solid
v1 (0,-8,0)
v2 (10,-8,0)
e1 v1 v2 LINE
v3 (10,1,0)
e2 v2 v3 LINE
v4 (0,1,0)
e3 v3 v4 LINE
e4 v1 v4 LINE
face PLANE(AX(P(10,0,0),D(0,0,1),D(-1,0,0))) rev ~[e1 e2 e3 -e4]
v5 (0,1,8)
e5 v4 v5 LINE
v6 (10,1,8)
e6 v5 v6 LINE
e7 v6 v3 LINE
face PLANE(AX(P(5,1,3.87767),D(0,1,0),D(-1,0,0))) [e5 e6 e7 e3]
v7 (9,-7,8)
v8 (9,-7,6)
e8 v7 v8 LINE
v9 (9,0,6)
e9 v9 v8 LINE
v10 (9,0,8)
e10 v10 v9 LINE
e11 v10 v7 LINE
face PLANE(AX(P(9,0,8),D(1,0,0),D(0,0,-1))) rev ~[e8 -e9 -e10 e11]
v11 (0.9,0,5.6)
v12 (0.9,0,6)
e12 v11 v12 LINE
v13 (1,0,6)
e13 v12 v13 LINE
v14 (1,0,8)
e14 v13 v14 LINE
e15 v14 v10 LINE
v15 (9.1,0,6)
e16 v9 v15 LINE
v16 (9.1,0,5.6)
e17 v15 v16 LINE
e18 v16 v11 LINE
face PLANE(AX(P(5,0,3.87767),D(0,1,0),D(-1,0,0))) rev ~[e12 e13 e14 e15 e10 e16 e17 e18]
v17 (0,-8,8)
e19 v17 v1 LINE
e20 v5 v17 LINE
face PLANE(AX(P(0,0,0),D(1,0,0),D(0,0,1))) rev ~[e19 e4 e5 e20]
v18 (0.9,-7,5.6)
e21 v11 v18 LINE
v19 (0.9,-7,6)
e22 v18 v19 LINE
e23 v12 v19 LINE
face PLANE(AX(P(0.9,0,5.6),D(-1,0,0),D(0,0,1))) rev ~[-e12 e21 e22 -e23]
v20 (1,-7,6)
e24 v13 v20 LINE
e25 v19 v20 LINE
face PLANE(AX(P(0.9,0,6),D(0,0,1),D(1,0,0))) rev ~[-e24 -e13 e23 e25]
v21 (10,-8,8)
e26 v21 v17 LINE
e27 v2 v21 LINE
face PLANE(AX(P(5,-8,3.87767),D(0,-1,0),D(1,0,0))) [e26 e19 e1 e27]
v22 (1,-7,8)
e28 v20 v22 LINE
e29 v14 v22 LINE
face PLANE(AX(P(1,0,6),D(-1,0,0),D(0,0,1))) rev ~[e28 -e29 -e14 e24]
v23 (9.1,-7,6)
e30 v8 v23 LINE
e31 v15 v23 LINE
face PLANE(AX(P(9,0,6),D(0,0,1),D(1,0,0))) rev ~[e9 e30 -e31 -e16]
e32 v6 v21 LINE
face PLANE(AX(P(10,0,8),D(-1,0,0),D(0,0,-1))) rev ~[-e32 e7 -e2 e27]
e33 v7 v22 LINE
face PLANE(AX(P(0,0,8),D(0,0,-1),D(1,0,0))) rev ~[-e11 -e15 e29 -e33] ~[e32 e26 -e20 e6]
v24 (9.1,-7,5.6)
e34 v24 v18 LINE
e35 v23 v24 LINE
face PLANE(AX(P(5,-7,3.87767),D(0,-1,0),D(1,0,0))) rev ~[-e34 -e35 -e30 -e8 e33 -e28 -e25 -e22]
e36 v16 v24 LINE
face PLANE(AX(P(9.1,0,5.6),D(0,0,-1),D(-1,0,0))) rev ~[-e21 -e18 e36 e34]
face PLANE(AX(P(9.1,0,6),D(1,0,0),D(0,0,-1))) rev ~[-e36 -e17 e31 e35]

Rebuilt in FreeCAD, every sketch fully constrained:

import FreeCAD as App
import Part
import Sketcher

V = App.Vector

doc = App.newDocument("Part")
params = doc.addObject("Spreadsheet::Sheet", "Params")
for row, (alias, value) in enumerate([
    ("sketch1_width", "10 mm"),
    ("sketch1_width2", "1 mm"),
    ("sketch1_height", "8 mm"),
    ("sketch1_height2", "2 mm"),
    ("sketch1_width3", "0.1 mm"),
    ("pad1_length", "7 mm"),
    ("sketch2_width", "10 mm"),
    ("sketch2_height", "8 mm"),
    ("pad2_length", "1 mm"),
    ("sketch3_width", "10 mm"),
    ("sketch3_height", "8 mm"),
    ("pad3_length", "1 mm"),
], start=1):
    params.set(f"A{row}", alias)
    params.set(f"B{row}", "=" + value)
    params.setAlias(f"B{row}", alias)

body = doc.addObject("PartDesign::Body", "Body")

sketch1 = body.newObject("Sketcher::SketchObject", "Sketch")
sketch1.AttachmentSupport = (doc.getObject("XZ_Plane"), [""])
sketch1.MapMode = "FlatFace"
sketch1.addGeometry([
    Part.LineSegment(V(0, 8, 0), V(0, 0, 0)),
    Part.LineSegment(V(0, 0, 0), V(10, 0, 0)),
    Part.LineSegment(V(10, 0, 0), V(10, 8, 0)),
    Part.LineSegment(V(10, 8, 0), V(9, 8, 0)),
    Part.LineSegment(V(9, 8, 0), V(9, 6, 0)),
    Part.LineSegment(V(9, 6, 0), V(9.1, 6, 0)),
    Part.LineSegment(V(9.1, 6, 0), V(9.1, 5.6, 0)),
    Part.LineSegment(V(9.1, 5.6, 0), V(0.9, 5.6, 0)),
    Part.LineSegment(V(0.9, 5.6, 0), V(0.9, 6, 0)),
    Part.LineSegment(V(0.9, 6, 0), V(1, 6, 0)),
    Part.LineSegment(V(1, 6, 0), V(1, 8, 0)),
    Part.LineSegment(V(1, 8, 0), V(0, 8, 0)),
], False)
sketch1.addConstraint([
    Sketcher.Constraint("Coincident", 0, 2, 1, 1),
    Sketcher.Constraint("Coincident", 1, 2, 2, 1),
    Sketcher.Constraint("Coincident", 2, 2, 3, 1),
    Sketcher.Constraint("Coincident", 3, 2, 4, 1),
    Sketcher.Constraint("Coincident", 4, 2, 5, 1),
    Sketcher.Constraint("Coincident", 5, 2, 6, 1),
    Sketcher.Constraint("Coincident", 6, 2, 7, 1),
    Sketcher.Constraint("Coincident", 7, 2, 8, 1),
    Sketcher.Constraint("Coincident", 8, 2, 9, 1),
    Sketcher.Constraint("Coincident", 9, 2, 10, 1),
    Sketcher.Constraint("Coincident", 10, 2, 11, 1),
    Sketcher.Constraint("Coincident", 11, 2, 0, 1),
    Sketcher.Constraint("Vertical", 0),
    Sketcher.Constraint("Horizontal", 1),
    Sketcher.Constraint("Vertical", 2),
    Sketcher.Constraint("Horizontal", 3),
    Sketcher.Constraint("Vertical", 4),
    Sketcher.Constraint("Horizontal", 5),
    Sketcher.Constraint("Vertical", 6),
    Sketcher.Constraint("Horizontal", 7),
    Sketcher.Constraint("Vertical", 8),
    Sketcher.Constraint("Horizontal", 9),
    Sketcher.Constraint("Vertical", 10),
    Sketcher.Constraint("Horizontal", 11),
    Sketcher.Constraint("Coincident", 0, 2, -1, 1),
    Sketcher.Constraint("Horizontal", 5, 2, 8, 2),
    Sketcher.Constraint("Horizontal", 3, 2, 10, 2),
    Sketcher.Constraint("Equal", 5, 9),
    Sketcher.Constraint("Equal", 3, 11),
    Sketcher.Constraint("DistanceX", 1, 1, 1, 2, 10.0),
    Sketcher.Constraint("DistanceX", 3, 2, 3, 1, 1.0),
    Sketcher.Constraint("DistanceY", 0, 2, 0, 1, 8.0),
    Sketcher.Constraint("DistanceY", 4, 2, 4, 1, 2.0),
    Sketcher.Constraint("DistanceX", 5, 1, 5, 2, 0.1),
    Sketcher.Constraint("DistanceY", 6, 2, 6, 1, 0.4),
])
sketch1.setExpression("Constraints[29]", "Params.sketch1_width")
sketch1.setExpression("Constraints[30]", "Params.sketch1_width2")
sketch1.setExpression("Constraints[31]", "Params.sketch1_height")
sketch1.setExpression("Constraints[32]", "Params.sketch1_height2")
sketch1.setExpression("Constraints[33]", "Params.sketch1_width3")
pad1 = body.newObject("PartDesign::Pad", "Pad")
pad1.Profile = sketch1
pad1.setExpression("Length", "Params.pad1_length")

sketch2 = body.newObject("Sketcher::SketchObject", "Sketch001")
sketch2.AttachmentSupport = (doc.getObject("XZ_Plane"), [""])
sketch2.MapMode = "FlatFace"
sketch2.AttachmentOffset = App.Placement(V(0, 0, 7), App.Rotation())
sketch2.addGeometry([
    Part.LineSegment(V(0, 8, 0), V(0, 0, 0)),
    Part.LineSegment(V(0, 0, 0), V(10, 0, 0)),
    Part.LineSegment(V(10, 0, 0), V(10, 8, 0)),
    Part.LineSegment(V(10, 8, 0), V(0, 8, 0)),
], False)
sketch2.addConstraint([
    Sketcher.Constraint("Coincident", 0, 2, 1, 1),
    Sketcher.Constraint("Coincident", 1, 2, 2, 1),
    Sketcher.Constraint("Coincident", 2, 2, 3, 1),
    Sketcher.Constraint("Coincident", 3, 2, 0, 1),
    Sketcher.Constraint("Vertical", 0),
    Sketcher.Constraint("Horizontal", 1),
    Sketcher.Constraint("Vertical", 2),
    Sketcher.Constraint("Horizontal", 3),
    Sketcher.Constraint("Coincident", 0, 2, -1, 1),
    Sketcher.Constraint("DistanceX", 1, 1, 1, 2, 10.0),
    Sketcher.Constraint("DistanceY", 0, 2, 0, 1, 8.0),
])
sketch2.setExpression("Constraints[9]", "Params.sketch2_width")
sketch2.setExpression("Constraints[10]", "Params.sketch2_height")
pad2 = body.newObject("PartDesign::Pad", "Pad001")
pad2.Profile = sketch2
pad2.setExpression("Length", "Params.pad2_length")

sketch3 = body.newObject("Sketcher::SketchObject", "Sketch002")
sketch3.AttachmentSupport = (doc.getObject("XZ_Plane"), [""])
sketch3.MapMode = "FlatFace"
sketch3.addGeometry([
    Part.LineSegment(V(10, 8, 0), V(10, 0, 0)),
    Part.LineSegment(V(10, 0, 0), V(0, 0, 0)),
    Part.LineSegment(V(0, 0, 0), V(0, 8, 0)),
    Part.LineSegment(V(0, 8, 0), V(10, 8, 0)),
], False)
sketch3.addConstraint([
    Sketcher.Constraint("Coincident", 0, 2, 1, 1),
    Sketcher.Constraint("Coincident", 1, 2, 2, 1),
    Sketcher.Constraint("Coincident", 2, 2, 3, 1),
    Sketcher.Constraint("Coincident", 3, 2, 0, 1),
    Sketcher.Constraint("Vertical", 0),
    Sketcher.Constraint("Horizontal", 1),
    Sketcher.Constraint("Vertical", 2),
    Sketcher.Constraint("Horizontal", 3),
    Sketcher.Constraint("Coincident", 1, 2, -1, 1),
    Sketcher.Constraint("DistanceX", 1, 2, 1, 1, 10.0),
    Sketcher.Constraint("DistanceY", 0, 2, 0, 1, 8.0),
])
sketch3.setExpression("Constraints[9]", "Params.sketch3_width")
sketch3.setExpression("Constraints[10]", "Params.sketch3_height")
pad3 = body.newObject("PartDesign::Pad", "Pad002")
pad3.Profile = sketch3
pad3.setExpression("Length", "Params.pad3_length")
pad3.Reversed = True

doc.recompute()
